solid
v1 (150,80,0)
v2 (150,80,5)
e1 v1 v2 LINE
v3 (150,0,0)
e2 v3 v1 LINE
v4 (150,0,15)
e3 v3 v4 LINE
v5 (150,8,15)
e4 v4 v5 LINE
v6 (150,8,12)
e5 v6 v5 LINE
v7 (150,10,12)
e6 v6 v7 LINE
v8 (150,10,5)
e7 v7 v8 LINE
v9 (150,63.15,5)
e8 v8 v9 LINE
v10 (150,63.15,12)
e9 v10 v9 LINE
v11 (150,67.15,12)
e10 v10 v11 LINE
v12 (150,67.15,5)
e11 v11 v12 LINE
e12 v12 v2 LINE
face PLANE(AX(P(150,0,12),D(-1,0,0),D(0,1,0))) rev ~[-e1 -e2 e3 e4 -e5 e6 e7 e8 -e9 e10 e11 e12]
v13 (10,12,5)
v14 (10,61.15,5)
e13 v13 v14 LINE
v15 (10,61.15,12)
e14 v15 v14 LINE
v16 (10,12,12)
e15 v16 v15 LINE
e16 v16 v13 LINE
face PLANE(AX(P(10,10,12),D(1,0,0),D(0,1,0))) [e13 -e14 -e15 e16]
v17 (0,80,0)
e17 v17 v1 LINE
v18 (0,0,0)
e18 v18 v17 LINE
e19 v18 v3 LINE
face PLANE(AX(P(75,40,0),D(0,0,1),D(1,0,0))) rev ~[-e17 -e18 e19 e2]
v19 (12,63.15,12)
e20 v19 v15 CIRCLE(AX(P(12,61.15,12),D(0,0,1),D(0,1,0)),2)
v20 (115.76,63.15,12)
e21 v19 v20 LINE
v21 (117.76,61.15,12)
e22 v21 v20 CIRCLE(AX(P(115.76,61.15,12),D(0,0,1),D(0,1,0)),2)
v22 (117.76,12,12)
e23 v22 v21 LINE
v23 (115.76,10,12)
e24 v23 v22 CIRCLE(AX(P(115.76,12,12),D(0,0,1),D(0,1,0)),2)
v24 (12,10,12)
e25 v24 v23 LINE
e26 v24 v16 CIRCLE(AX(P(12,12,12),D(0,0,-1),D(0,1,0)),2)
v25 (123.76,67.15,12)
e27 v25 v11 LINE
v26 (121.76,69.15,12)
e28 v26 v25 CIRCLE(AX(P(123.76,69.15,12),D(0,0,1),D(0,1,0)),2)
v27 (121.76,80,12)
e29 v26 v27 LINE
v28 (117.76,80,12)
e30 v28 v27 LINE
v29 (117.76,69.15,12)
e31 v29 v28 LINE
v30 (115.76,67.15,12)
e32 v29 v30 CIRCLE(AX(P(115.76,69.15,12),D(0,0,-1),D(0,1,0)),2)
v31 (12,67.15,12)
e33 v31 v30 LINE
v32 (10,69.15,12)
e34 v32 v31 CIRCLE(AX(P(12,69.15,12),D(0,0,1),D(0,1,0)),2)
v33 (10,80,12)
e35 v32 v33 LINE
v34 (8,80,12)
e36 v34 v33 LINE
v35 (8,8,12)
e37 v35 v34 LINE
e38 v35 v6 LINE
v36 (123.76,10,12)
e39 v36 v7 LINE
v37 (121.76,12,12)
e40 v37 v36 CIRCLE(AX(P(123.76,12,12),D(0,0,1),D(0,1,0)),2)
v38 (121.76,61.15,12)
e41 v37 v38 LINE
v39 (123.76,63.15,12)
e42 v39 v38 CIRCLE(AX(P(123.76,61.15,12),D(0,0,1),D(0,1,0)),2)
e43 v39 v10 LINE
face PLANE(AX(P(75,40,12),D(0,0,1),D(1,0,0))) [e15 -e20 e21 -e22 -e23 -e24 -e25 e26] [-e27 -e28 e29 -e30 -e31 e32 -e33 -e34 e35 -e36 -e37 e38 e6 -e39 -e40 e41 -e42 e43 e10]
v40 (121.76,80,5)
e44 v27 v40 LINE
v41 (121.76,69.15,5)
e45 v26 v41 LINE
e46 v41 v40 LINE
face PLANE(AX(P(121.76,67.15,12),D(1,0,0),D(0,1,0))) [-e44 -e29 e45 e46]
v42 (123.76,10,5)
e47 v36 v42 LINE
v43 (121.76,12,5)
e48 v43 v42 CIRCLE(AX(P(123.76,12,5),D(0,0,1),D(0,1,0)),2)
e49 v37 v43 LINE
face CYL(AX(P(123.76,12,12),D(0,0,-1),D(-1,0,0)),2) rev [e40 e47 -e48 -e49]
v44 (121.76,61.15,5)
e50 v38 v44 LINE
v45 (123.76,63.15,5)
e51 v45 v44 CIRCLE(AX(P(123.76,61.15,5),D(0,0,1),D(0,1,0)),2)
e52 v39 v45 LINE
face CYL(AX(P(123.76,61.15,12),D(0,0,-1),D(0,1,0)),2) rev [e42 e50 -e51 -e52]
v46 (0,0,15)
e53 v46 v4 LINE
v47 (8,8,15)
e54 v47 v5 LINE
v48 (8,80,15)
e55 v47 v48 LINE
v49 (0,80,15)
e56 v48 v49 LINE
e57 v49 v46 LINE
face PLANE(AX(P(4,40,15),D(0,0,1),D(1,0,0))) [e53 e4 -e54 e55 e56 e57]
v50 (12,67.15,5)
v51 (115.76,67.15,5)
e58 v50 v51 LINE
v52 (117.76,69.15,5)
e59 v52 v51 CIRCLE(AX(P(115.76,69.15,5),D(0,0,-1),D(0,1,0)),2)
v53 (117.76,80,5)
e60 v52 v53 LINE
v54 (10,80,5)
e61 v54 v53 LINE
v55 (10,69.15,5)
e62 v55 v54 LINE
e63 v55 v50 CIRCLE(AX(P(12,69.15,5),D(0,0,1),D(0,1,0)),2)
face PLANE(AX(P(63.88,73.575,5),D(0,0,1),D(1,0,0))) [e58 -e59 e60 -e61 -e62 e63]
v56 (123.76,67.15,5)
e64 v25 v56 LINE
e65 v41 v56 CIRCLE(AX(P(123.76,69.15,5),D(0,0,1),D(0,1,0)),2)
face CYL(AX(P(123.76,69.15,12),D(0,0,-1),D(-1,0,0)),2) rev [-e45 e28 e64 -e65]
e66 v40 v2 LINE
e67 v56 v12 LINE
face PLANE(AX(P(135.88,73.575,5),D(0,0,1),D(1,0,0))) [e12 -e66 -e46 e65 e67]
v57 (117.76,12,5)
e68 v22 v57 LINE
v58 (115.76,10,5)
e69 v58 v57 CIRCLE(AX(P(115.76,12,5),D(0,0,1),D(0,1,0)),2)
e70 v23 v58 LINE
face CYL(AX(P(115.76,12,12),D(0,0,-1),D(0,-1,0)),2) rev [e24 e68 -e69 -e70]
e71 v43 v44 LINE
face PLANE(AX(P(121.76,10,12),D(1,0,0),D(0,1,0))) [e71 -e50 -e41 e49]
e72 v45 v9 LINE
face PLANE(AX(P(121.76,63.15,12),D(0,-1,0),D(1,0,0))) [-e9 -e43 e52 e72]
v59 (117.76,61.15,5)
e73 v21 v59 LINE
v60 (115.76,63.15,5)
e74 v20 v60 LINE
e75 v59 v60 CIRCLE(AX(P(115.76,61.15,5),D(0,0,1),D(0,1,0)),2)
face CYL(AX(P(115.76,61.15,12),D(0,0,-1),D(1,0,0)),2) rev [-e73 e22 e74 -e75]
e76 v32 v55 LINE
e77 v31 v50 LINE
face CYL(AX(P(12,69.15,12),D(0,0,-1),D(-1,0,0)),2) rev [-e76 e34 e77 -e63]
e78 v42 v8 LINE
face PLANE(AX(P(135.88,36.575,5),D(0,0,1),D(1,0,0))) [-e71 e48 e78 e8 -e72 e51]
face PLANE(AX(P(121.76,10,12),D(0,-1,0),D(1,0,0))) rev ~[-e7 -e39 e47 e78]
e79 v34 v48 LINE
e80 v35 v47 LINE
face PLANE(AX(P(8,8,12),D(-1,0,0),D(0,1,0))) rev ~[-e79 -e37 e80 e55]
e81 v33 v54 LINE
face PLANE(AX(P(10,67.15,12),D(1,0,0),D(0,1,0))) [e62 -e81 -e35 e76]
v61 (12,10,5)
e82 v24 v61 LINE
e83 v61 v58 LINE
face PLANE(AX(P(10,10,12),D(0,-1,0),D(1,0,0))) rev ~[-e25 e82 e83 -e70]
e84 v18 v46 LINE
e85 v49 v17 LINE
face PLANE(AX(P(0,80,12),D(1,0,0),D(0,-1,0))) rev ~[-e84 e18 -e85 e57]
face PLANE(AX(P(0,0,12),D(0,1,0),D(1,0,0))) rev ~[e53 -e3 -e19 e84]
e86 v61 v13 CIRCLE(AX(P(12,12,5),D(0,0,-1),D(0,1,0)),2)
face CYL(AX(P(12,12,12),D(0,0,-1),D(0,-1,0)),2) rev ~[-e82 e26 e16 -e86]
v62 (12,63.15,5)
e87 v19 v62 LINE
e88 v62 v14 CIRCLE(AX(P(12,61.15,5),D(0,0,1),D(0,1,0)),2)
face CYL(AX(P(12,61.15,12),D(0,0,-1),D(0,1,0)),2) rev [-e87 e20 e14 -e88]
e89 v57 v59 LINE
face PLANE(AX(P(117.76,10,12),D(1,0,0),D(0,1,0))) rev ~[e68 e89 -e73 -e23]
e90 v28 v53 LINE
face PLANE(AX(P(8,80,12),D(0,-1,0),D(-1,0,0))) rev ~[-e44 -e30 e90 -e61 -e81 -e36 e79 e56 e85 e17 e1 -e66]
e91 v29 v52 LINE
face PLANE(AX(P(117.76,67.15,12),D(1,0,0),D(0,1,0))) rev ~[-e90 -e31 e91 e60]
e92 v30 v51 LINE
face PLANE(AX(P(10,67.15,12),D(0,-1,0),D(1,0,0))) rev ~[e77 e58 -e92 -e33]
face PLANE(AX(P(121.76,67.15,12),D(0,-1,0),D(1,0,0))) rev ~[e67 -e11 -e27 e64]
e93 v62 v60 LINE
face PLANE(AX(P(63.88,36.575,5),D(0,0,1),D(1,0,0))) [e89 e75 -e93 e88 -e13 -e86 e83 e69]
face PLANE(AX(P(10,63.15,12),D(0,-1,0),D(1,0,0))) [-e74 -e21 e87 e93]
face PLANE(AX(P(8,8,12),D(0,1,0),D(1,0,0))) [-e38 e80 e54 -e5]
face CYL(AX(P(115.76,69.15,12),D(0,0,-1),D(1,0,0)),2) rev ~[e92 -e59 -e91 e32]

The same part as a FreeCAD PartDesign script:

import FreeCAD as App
import Part
import Sketcher
Q = App.Units.Quantity


def edges_at(feature, points):
    """Names of the edges that pass closest to the given points."""
    edges = feature.Shape.Edges
    near = lambda p: min(range(len(edges)), key=lambda i: edges[i].distToShape(Part.Vertex(*p))[0])
    return sorted({f"Edge{near(p) + 1}" for p in points})

doc = App.newDocument("Part")
body = doc.addObject("PartDesign::Body", "Body")

sketch1 = doc.addObject("Sketcher::SketchObject", "Sketch")
body.addObject(sketch1)
sketch1.AttachmentSupport = (doc.XY_Plane, [""])
sketch1.MapMode = "FlatFace"
sketch1.addGeometry([
    Part.LineSegment(App.Vector(0, 80, 0), App.Vector(0, 0, 0)),
    Part.LineSegment(App.Vector(0, 0, 0), App.Vector(150, 0, 0)),
    Part.LineSegment(App.Vector(150, 0, 0), App.Vector(150, 80, 0)),
    Part.LineSegment(App.Vector(150, 80, 0), App.Vector(0, 80, 0)),
], False)
sketch1.addConstraint([
    Sketcher.Constraint("Coincident", 0, 2, 1, 1),
    Sketcher.Constraint("Coincident", 1, 2, 2, 1),
    Sketcher.Constraint("Coincident", 2, 2, 3, 1),
    Sketcher.Constraint("Coincident", 3, 2, 0, 1),
    Sketcher.Constraint("Vertical", 0),
    Sketcher.Constraint("Horizontal", 1),
    Sketcher.Constraint("Vertical", 2),
    Sketcher.Constraint("Horizontal", 3),
    Sketcher.Constraint("Coincident", 0, 2, -1, 1),
    Sketcher.Constraint("DistanceX", 1, 1, 1, 2, Q("150 mm")),
    Sketcher.Constraint("DistanceY", 0, 2, 0, 1, Q("80 mm")),
])
pad1 = doc.addObject("PartDesign::Pad", "Pad")
body.addObject(pad1)
pad1.Profile = sketch1
pad1.Length = 12

sketch2 = doc.addObject("Sketcher::SketchObject", "Sketch001")
body.addObject(sketch2)
sketch2.AttachmentSupport = (doc.XY_Plane, [""])
sketch2.MapMode = "FlatFace"
sketch2.AttachmentOffset = App.Placement(App.Vector(0, 0, 12), App.Rotation())
sketch2.addGeometry([
    Part.LineSegment(App.Vector(0, 80, 0), App.Vector(0, 0, 0)),
    Part.LineSegment(App.Vector(0, 0, 0), App.Vector(150, 0, 0)),
    Part.LineSegment(App.Vector(150, 0, 0), App.Vector(150, 8, 0)),
    Part.LineSegment(App.Vector(150, 8, 0), App.Vector(8, 8, 0)),
    Part.LineSegment(App.Vector(8, 8, 0), App.Vector(8, 80, 0)),
    Part.LineSegment(App.Vector(8, 80, 0), App.Vector(0, 80, 0)),
], False)
sketch2.addConstraint([
    Sketcher.Constraint("Coincident", 0, 2, 1, 1),
    Sketcher.Constraint("Coincident", 1, 2, 2, 1),
    Sketcher.Constraint("Coincident", 2, 2, 3, 1),
    Sketcher.Constraint("Coincident", 3, 2, 4, 1),
    Sketcher.Constraint("Coincident", 4, 2, 5, 1),
    Sketcher.Constraint("Coincident", 5, 2, 0, 1),
    Sketcher.Constraint("Vertical", 0),
    Sketcher.Constraint("Horizontal", 1),
    Sketcher.Constraint("Vertical", 2),
    Sketcher.Constraint("Horizontal", 3),
    Sketcher.Constraint("Vertical", 4),
    Sketcher.Constraint("Horizontal", 5),
    Sketcher.Constraint("Coincident", 0, 2, -1, 1),
    Sketcher.Constraint("Equal", 5, 2),
    Sketcher.Constraint("DistanceX", 1, 1, 1, 2, Q("150 mm")),
    Sketcher.Constraint("DistanceX", 3, 2, 3, 1, Q("142 mm")),
    Sketcher.Constraint("DistanceY", 0, 2, 0, 1, Q("80 mm")),
])
pad2 = doc.addObject("PartDesign::Pad", "Pad001")
body.addObject(pad2)
pad2.Profile = sketch2
pad2.Length = 3

sketch3 = doc.addObject("Sketcher::SketchObject", "Sketch002")
body.addObject(sketch3)
sketch3.AttachmentSupport = (doc.XY_Plane, [""])
sketch3.MapMode = "FlatFace"
sketch3.AttachmentOffset = App.Placement(App.Vector(0, 0, 12), App.Rotation())
sketch3.addGeometry([
    Part.LineSegment(App.Vector(10, 80, 0), App.Vector(10, 67, 0)),
    Part.LineSegment(App.Vector(10, 67, 0), App.Vector(118, 67, 0)),
    Part.LineSegment(App.Vector(118, 67, 0), App.Vector(118, 80, 0)),
    Part.LineSegment(App.Vector(118, 80, 0), App.Vector(10, 80, 0)),
    Part.LineSegment(App.Vector(10, 63, 0), App.Vector(10, 10, 0)),
    Part.LineSegment(App.Vector(10, 10, 0), App.Vector(118, 10, 0)),
    Part.LineSegment(App.Vector(118, 10, 0), App.Vector(118, 63, 0)),
    Part.LineSegment(App.Vector(118, 63, 0), App.Vector(10, 63, 0)),
    Part.LineSegment(App.Vector(122, 63, 0), App.Vector(122, 10, 0)),
    Part.LineSegment(App.Vector(122, 10, 0), App.Vector(150, 10, 0)),
    Part.LineSegment(App.Vector(150, 10, 0), App.Vector(150, 63, 0)),
    Part.LineSegment(App.Vector(150, 63, 0), App.Vector(122, 63, 0)),
    Part.LineSegment(App.Vector(122, 80, 0), App.Vector(122, 67, 0)),
    Part.LineSegment(App.Vector(122, 67, 0), App.Vector(150, 67, 0)),
    Part.LineSegment(App.Vector(150, 67, 0), App.Vector(150, 80, 0)),
    Part.LineSegment(App.Vector(150, 80, 0), App.Vector(122, 80, 0)),
], False)
sketch3.addConstraint([
    Sketcher.Constraint("Coincident", 0, 2, 1, 1),
    Sketcher.Constraint("Coincident", 1, 2, 2, 1),
    Sketcher.Constraint("Coincident", 2, 2, 3, 1),
    Sketcher.Constraint("Coincident", 3, 2, 0, 1),
    Sketcher.Constraint("Coincident", 4, 2, 5, 1),
    Sketcher.Constraint("Coincident", 5, 2, 6, 1),
    Sketcher.Constraint("Coincident", 6, 2, 7, 1),
    Sketcher.Constraint("Coincident", 7, 2, 4, 1),
    Sketcher.Constraint("Coincident", 8, 2, 9, 1),
    Sketcher.Constraint("Coincident", 9, 2, 10, 1),
    Sketcher.Constraint("Coincident", 10, 2, 11, 1),
    Sketcher.Constraint("Coincident", 11, 2, 8, 1),
    Sketcher.Constraint("Coincident", 12, 2, 13, 1),
    Sketcher.Constraint("Coincident", 13, 2, 14, 1),
    Sketcher.Constraint("Coincident", 14, 2, 15, 1),
    Sketcher.Constraint("Coincident", 15, 2, 12, 1),
    Sketcher.Constraint("Vertical", 0),
    Sketcher.Constraint("Horizontal", 1),
    Sketcher.Constraint("Vertical", 2),
    Sketcher.Constraint("Horizontal", 3),
    Sketcher.Constraint("Vertical", 4),
    Sketcher.Constraint("Horizontal", 5),
    Sketcher.Constraint("Vertical", 6),
    Sketcher.Constraint("Horizontal", 7),
    Sketcher.Constraint("Vertical", 8),
    Sketcher.Constraint("Horizontal", 9),
    Sketcher.Constraint("Vertical", 10),
    Sketcher.Constraint("Horizontal", 11),
    Sketcher.Constraint("Vertical", 12),
    Sketcher.Constraint("Horizontal", 13),
    Sketcher.Constraint("Vertical", 14),
    Sketcher.Constraint("Horizontal", 15),
    Sketcher.Constraint("Horizontal", 5, 2, 8, 2),
    Sketcher.Constraint("Horizontal", 7, 2, 10, 2),
    Sketcher.Constraint("Horizontal", 1, 2, 12, 2),
    Sketcher.Constraint("Horizontal", 3, 2, 14, 2),
    Sketcher.Constraint("Vertical", 3, 2, 4, 2),
    Sketcher.Constraint("Vertical", 2, 2, 5, 2),
    Sketcher.Constraint("Vertical", 11, 2, 12, 2),
    Sketcher.Constraint("Vertical", 10, 2, 13, 2),
    Sketcher.Constraint("DistanceX", -1, 1, 0, 2, Q("10 mm")),
    Sketcher.Constraint("DistanceY", -1, 1, 2, 2, Q("80 mm")),
    Sketcher.Constraint("DistanceY", -1, 1, 4, 2, Q("10 mm")),
    Sketcher.Constraint("DistanceX", -1, 1, 9, 2, Q("150 mm")),
    Sketcher.Constraint("DistanceY", 6, 2, 1, 2, Q("4 mm")),
    Sketcher.Constraint("DistanceX", 5, 2, 8, 2, Q("4 mm")),
    Sketcher.Constraint("DistanceX", 1, 1, 1, 2, Q("107.76 mm")),
    Sketcher.Constraint("DistanceY", 0, 2, 0, 1, Q("12.85 mm")),
])
pocket1 = doc.addObject("PartDesign::Pocket", "Pocket")
body.addObject(pocket1)
pocket1.Profile = sketch3
pocket1.Length = 7
doc.recompute()

fillet = doc.addObject("PartDesign::Fillet", "Fillet")
body.addObject(fillet)
fillet.Base = (pocket1, edges_at(pocket1, [
    (10, 63.15, 8.5),
    (117.76, 63.15, 8.5),
    (121.76, 63.15, 8.5),
    (121.76, 67.15, 8.5),
    (117.76, 67.15, 8.5),
    (117.76, 10, 8.5),
    (10, 10, 8.5),
    (10, 67.15, 8.5),
    (121.76, 10, 8.5),
]))
fillet.Radius = 2

doc.recompute()
